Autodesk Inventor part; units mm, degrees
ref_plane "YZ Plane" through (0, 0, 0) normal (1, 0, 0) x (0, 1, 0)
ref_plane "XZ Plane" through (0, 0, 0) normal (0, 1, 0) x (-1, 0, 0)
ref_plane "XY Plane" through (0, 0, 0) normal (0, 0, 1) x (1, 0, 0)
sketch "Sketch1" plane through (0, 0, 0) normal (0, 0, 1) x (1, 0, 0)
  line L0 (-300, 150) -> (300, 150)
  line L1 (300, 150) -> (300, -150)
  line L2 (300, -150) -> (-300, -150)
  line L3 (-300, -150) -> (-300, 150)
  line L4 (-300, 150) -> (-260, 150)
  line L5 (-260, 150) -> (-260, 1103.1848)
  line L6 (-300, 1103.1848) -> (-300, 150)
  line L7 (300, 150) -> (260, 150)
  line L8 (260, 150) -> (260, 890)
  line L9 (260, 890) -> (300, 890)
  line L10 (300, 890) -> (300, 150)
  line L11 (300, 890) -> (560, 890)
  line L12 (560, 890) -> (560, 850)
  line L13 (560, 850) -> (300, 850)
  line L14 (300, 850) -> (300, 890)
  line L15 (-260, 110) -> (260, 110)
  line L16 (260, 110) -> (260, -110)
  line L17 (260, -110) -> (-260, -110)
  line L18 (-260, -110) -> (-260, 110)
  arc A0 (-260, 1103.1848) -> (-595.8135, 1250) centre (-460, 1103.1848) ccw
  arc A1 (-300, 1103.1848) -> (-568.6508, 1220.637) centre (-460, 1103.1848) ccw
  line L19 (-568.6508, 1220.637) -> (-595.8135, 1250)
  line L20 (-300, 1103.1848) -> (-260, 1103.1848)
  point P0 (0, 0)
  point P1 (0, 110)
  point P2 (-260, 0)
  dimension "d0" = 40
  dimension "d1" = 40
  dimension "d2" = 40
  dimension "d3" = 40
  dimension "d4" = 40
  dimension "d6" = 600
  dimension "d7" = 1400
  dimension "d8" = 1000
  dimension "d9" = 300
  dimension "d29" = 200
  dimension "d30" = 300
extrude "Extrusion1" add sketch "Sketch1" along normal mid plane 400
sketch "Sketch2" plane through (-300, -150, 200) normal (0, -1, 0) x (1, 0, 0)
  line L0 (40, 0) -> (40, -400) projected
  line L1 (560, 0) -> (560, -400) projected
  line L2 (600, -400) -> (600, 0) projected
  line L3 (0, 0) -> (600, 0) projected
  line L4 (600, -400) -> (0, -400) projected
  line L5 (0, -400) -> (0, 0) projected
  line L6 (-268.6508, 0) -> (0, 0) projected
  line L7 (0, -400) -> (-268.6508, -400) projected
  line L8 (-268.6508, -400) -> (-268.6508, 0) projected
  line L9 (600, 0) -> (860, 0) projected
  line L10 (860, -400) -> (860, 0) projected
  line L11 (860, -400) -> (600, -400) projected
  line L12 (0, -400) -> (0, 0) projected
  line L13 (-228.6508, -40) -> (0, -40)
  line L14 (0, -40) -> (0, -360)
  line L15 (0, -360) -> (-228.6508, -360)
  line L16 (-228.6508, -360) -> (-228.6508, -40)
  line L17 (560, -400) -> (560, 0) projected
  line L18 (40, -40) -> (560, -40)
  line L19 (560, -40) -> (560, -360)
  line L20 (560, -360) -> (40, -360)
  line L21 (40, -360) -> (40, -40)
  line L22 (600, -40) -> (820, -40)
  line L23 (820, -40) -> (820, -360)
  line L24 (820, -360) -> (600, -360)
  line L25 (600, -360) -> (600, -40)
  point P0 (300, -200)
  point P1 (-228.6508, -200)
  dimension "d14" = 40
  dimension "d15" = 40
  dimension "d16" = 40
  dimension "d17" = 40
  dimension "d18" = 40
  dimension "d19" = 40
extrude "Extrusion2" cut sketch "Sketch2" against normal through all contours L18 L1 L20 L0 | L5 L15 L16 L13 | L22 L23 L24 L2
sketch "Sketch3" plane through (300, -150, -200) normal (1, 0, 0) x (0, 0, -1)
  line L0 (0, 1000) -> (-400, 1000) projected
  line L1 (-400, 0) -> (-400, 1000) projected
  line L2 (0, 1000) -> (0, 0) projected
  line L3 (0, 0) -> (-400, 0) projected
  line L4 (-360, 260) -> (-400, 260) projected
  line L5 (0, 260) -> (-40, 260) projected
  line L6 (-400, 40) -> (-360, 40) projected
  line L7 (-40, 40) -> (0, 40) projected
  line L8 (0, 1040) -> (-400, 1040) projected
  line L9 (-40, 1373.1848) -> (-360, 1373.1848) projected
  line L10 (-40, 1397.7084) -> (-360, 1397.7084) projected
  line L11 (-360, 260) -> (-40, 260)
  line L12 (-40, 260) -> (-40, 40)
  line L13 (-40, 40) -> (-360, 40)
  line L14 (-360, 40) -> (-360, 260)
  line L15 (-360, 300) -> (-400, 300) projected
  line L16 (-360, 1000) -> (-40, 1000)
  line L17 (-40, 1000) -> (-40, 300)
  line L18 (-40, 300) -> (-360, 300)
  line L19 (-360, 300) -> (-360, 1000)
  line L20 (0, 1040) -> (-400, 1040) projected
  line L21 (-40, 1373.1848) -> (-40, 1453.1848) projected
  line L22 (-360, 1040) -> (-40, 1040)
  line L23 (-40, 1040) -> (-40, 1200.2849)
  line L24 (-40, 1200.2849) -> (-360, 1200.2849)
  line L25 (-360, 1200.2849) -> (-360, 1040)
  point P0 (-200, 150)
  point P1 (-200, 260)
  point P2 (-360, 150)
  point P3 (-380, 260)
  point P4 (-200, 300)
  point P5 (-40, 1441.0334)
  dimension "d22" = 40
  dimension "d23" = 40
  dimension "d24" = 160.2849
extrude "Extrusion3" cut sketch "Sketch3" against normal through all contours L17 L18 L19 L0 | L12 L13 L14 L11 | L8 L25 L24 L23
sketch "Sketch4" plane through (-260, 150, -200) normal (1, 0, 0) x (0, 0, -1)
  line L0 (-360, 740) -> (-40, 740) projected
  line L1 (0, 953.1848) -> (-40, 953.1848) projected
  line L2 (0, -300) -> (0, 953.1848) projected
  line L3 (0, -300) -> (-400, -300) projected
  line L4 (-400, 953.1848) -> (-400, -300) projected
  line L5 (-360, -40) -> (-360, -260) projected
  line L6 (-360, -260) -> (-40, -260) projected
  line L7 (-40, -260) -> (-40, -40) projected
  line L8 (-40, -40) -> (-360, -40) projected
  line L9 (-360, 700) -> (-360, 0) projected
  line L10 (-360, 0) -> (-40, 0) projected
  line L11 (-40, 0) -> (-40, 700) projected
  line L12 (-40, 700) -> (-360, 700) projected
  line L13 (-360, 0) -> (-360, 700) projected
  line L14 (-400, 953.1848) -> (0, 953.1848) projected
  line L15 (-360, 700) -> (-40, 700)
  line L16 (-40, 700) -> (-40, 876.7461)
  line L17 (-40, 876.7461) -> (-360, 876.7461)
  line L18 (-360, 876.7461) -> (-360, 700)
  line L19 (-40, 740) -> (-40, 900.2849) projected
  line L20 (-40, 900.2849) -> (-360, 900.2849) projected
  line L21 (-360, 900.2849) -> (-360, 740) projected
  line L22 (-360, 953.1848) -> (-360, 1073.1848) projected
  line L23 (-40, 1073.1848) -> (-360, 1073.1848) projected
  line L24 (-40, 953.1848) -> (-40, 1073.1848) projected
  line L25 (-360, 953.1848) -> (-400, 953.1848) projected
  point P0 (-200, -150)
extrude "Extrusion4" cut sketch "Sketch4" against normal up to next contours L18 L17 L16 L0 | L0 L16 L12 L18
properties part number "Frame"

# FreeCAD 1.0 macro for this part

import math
import FreeCAD as App
import Part
import Sketcher
from FreeCAD import Vector
Q = App.Units.Quantity

doc = App.newDocument("Part")
params = doc.addObject("Spreadsheet::Sheet", "Params")
for row, (alias, value) in enumerate([
    ("sketch1_radius", "200 mm"),
    ("sketch1_width", "600 mm"),
    ("sketch1_width2", "300 mm"),
    ("sketch1_height", "1000 mm"),
    ("sketch1_height2", "40 mm"),
    ("pad1_length", "400 mm"),
    ("sketch2_width", "520 mm"),
    ("sketch2_width2", "220 mm"),
    ("sketch2_height", "320 mm"),
    ("sketch3_width", "700 mm"),
    ("sketch3_width2", "220 mm"),
    ("sketch3_height", "320 mm"),
    ("sketch4_height", "320 mm"),
    ("pocket3_length", "40 mm"),
], start=1):
    params.set(f"A{row}", alias)
    params.set(f"B{row}", "=" + value)
    params.setAlias(f"B{row}", alias)

body = doc.addObject("PartDesign::Body", "Body")

# Sketch on XY plane
sketch1 = body.newObject("Sketcher::SketchObject", "Sketch")
sketch1.AttachmentSupport = (doc.getObject("XY_Plane"), [""])
sketch1.MapMode = "FlatFace"
sketch1.addGeometry([
    Part.LineSegment(Vector(-300, 1103, 0), Vector(-300, -150, 0)),  # 0
    Part.LineSegment(Vector(-300, -150, 0), Vector(300, -150, 0)),  # 1
    Part.LineSegment(Vector(300, -150, 0), Vector(300, 850, 0)),  # 2
    Part.LineSegment(Vector(300, 850, 0), Vector(560, 850, 0)),  # 3
    Part.LineSegment(Vector(560, 850, 0), Vector(560, 890, 0)),  # 4
    Part.LineSegment(Vector(560, 890, 0), Vector(260, 890, 0)),  # 5
    Part.LineSegment(Vector(260, 890, 0), Vector(260, 150, 0)),  # 6
    Part.LineSegment(Vector(260, 150, 0), Vector(-260, 150, 0)),  # 7
    Part.LineSegment(Vector(-260, 150, 0), Vector(-260, 1103, 0)),  # 8
    Part.ArcOfCircle(Part.Circle(Vector(-460, 1103, 0), Vector(0, 0, 1), 200), math.radians(0), math.radians(133)),  # 9
    Part.LineSegment(Vector(-596, 1250, 0), Vector(-569, 1221, 0)),  # 10
    Part.ArcOfCircle(Part.Circle(Vector(-460, 1103, 0), Vector(0, 0, 1), 160), math.radians(0), math.radians(133)),  # 11
    Part.LineSegment(Vector(-260, 110, 0), Vector(260, 110, 0)),  # 12
    Part.LineSegment(Vector(260, 110, 0), Vector(260, -110, 0)),  # 13
    Part.LineSegment(Vector(260, -110, 0), Vector(-260, -110, 0)),  # 14
    Part.LineSegment(Vector(-260, -110, 0), Vector(-260, 110, 0)),  # 15
], False)
sketch1.addConstraint([
    Sketcher.Constraint("Coincident", 0, 2, 1, 1),
    Sketcher.Constraint("Coincident", 1, 2, 2, 1),
    Sketcher.Constraint("Coincident", 2, 2, 3, 1),
    Sketcher.Constraint("Coincident", 3, 2, 4, 1),
    Sketcher.Constraint("Coincident", 4, 2, 5, 1),
    Sketcher.Constraint("Coincident", 5, 2, 6, 1),
    Sketcher.Constraint("Coincident", 6, 2, 7, 1),
    Sketcher.Constraint("Coincident", 7, 2, 8, 1),
    Sketcher.Constraint("Tangent", 8, 2, 9, 1),
    Sketcher.Constraint("Coincident", 9, 2, 10, 1),
    Sketcher.Constraint("Coincident", 10, 2, 11, 2),
    Sketcher.Constraint("Tangent", 11, 1, 0, 1),
    Sketcher.Constraint("Coincident", 12, 2, 13, 1),
    Sketcher.Constraint("Coincident", 13, 2, 14, 1),
    Sketcher.Constraint("Coincident", 14, 2, 15, 1),
    Sketcher.Constraint("Coincident", 15, 2, 12, 1),
    Sketcher.Constraint("Vertical", 0),
    Sketcher.Constraint("Horizontal", 1),
    Sketcher.Constraint("Vertical", 2),
    Sketcher.Constraint("Horizontal", 3),
    Sketcher.Constraint("Vertical", 4),
    Sketcher.Constraint("Horizontal", 5),
    Sketcher.Constraint("Vertical", 6),
    Sketcher.Constraint("Horizontal", 7),
    Sketcher.Constraint("Vertical", 8),
    Sketcher.Constraint("Horizontal", 12),
    Sketcher.Constraint("Vertical", 13),
    Sketcher.Constraint("Horizontal", 14),
    Sketcher.Constraint("Vertical", 15),
    Sketcher.Constraint("Coincident", 11, 3, 9, 3),
    Sketcher.Constraint("Symmetric", 12, 2, 14, 2, -1, 1),
    Sketcher.Constraint("Vertical", 6, 2, 12, 2),
    Sketcher.Constraint("Vertical", 8, 2, 14, 2),
    Sketcher.Constraint("Radius", 9, Q("200 mm")),
    Sketcher.Constraint("DistanceX", 1, 1, 1, 2, Q("600 mm")),
    Sketcher.Constraint("DistanceX", 5, 2, 5, 1, Q("300 mm")),
    Sketcher.Constraint("DistanceY", 2, 1, 2, 2, Q("1000 mm")),
    Sketcher.Constraint("DistanceY", 4, 1, 4, 2, Q("40 mm")),
    Sketcher.Constraint("Distance", 10, Q("40 mm")),
    Sketcher.Constraint("DistanceX", 0, 2, -1, 1, Q("300 mm")),
    Sketcher.Constraint("DistanceY", 1, 2, 6, 2, Q("300 mm")),
    Sketcher.Constraint("DistanceY", 12, 2, 6, 2, Q("40 mm")),
    Sketcher.Constraint("DistanceY", 1, 2, 13, 2, Q("40 mm")),
    Sketcher.Constraint("DistanceY", -1, 1, 9, 2, Q("1250 mm")),
    Sketcher.Constraint("Angle", 10, Q("-47.2292 deg")),
    Sketcher.Constraint("DistanceY", 0, 2, 0, 1, Q("1253.1848 mm")),
])
sketch1.setExpression("Constraints[33]", "Params.sketch1_radius")
sketch1.setExpression("Constraints[34]", "Params.sketch1_width")
sketch1.setExpression("Constraints[35]", "Params.sketch1_width2")
sketch1.setExpression("Constraints[36]", "Params.sketch1_height")
sketch1.setExpression("Constraints[37]", "Params.sketch1_height2")
pad1 = body.newObject("PartDesign::Pad", "Pad")
pad1.Profile = sketch1
pad1.setExpression("Length", "Params.pad1_length")
pad1.Midplane = True

# Sketch on XZ plane
sketch2 = body.newObject("Sketcher::SketchObject", "Sketch001")
sketch2.AttachmentSupport = (doc.getObject("XZ_Plane"), [""])
sketch2.MapMode = "FlatFace"
sketch2.AttachmentOffset = App.Placement(Vector(0, 0, 150), App.Rotation())
sketch2.addGeometry([
    Part.LineSegment(Vector(260, 160, 0), Vector(-260, 160, 0)),  # 0
    Part.LineSegment(Vector(-260, 160, 0), Vector(-260, -160, 0)),  # 1
    Part.LineSegment(Vector(-260, -160, 0), Vector(260, -160, 0)),  # 2
    Part.LineSegment(Vector(260, -160, 0), Vector(260, 160, 0)),  # 3
    Part.LineSegment(Vector(-300, -160, 0), Vector(-300, 160, 0)),  # 4
    Part.LineSegment(Vector(-300, 160, 0), Vector(-529, 160, 0)),  # 5
    Part.LineSegment(Vector(-529, 160, 0), Vector(-529, -160, 0)),  # 6
    Part.LineSegment(Vector(-529, -160, 0), Vector(-300, -160, 0)),  # 7
    Part.LineSegment(Vector(520, 160, 0), Vector(300, 160, 0)),  # 8
    Part.LineSegment(Vector(300, 160, 0), Vector(300, -160, 0)),  # 9
    Part.LineSegment(Vector(300, -160, 0), Vector(520, -160, 0)),  # 10
    Part.LineSegment(Vector(520, -160, 0), Vector(520, 160, 0)),  # 11
], False)
sketch2.addConstraint([
    Sketcher.Constraint("Coincident", 0, 2, 1, 1),
    Sketcher.Constraint("Coincident", 1, 2, 2, 1),
    Sketcher.Constraint("Coincident", 2, 2, 3, 1),
    Sketcher.Constraint("Coincident", 3, 2, 0, 1),
    Sketcher.Constraint("Coincident", 4, 2, 5, 1),
    Sketcher.Constraint("Coincident", 5, 2, 6, 1),
    Sketcher.Constraint("Coincident", 6, 2, 7, 1),
    Sketcher.Constraint("Coincident", 7, 2, 4, 1),
    Sketcher.Constraint("Coincident", 8, 2, 9, 1),
    Sketcher.Constraint("Coincident", 9, 2, 10, 1),
    Sketcher.Constraint("Coincident", 10, 2, 11, 1),
    Sketcher.Constraint("Coincident", 11, 2, 8, 1),
    Sketcher.Constraint("Horizontal", 0),
    Sketcher.Constraint("Vertical", 1),
    Sketcher.Constraint("Horizontal", 2),
    Sketcher.Constraint("Vertical", 3),
    Sketcher.Constraint("Vertical", 4),
    Sketcher.Constraint("Horizontal", 5),
    Sketcher.Constraint("Vertical", 6),
    Sketcher.Constraint("Horizontal", 7),
    Sketcher.Constraint("Horizontal", 8),
    Sketcher.Constraint("Vertical", 9),
    Sketcher.Constraint("Horizontal", 10),
    Sketcher.Constraint("Vertical", 11),
    Sketcher.Constraint("Symmetric", 0, 2, 2, 2, -1, 1),
    Sketcher.Constraint("Symmetric", 7, 2, 8, 2, -1, 1),
    Sketcher.Constraint("Horizontal", 3, 2, 4, 2),
    Sketcher.Constraint("Horizontal", 2, 2, 6, 2),
    Sketcher.Constraint("Horizontal", 7, 2, 9, 2),
    Sketcher.Constraint("DistanceX", 4, 2, 0, 2, Q("40 mm")),
    Sketcher.Constraint("DistanceX", 0, 2, 0, 1, Q("520 mm")),
    Sketcher.Constraint("DistanceX", 8, 2, 8, 1, Q("220 mm")),
    Sketcher.Constraint("DistanceY", 1, 2, 1, 1, Q("320 mm")),
    Sketcher.Constraint("DistanceX", 5, 2, 5, 1, Q("228.6508 mm")),
])
sketch2.setExpression("Constraints[30]", "Params.sketch2_width")
sketch2.setExpression("Constraints[31]", "Params.sketch2_width2")
sketch2.setExpression("Constraints[32]", "Params.sketch2_height")
pocket1 = body.newObject("PartDesign::Pocket", "Pocket")
pocket1.Profile = sketch2
pocket1.Type = "ThroughAll"

# Sketch on YZ plane
sketch3 = body.newObject("Sketcher::SketchObject", "Sketch002")
sketch3.AttachmentSupport = (doc.getObject("YZ_Plane"), [""])
sketch3.MapMode = "FlatFace"
sketch3.AttachmentOffset = App.Placement(Vector(0, 0, 300), App.Rotation())
sketch3.addGeometry([
    Part.LineSegment(Vector(150, -160, 0), Vector(850, -160, 0)),  # 0
    Part.LineSegment(Vector(850, -160, 0), Vector(850, 160, 0)),  # 1
    Part.LineSegment(Vector(850, 160, 0), Vector(150, 160, 0)),  # 2
    Part.LineSegment(Vector(150, 160, 0), Vector(150, -160, 0)),  # 3
    Part.LineSegment(Vector(-110, -160, 0), Vector(110, -160, 0)),  # 4
    Part.LineSegment(Vector(110, -160, 0), Vector(110, 160, 0)),  # 5
    Part.LineSegment(Vector(110, 160, 0), Vector(-110, 160, 0)),  # 6
    Part.LineSegment(Vector(-110, 160, 0), Vector(-110, -160, 0)),  # 7
    Part.LineSegment(Vector(890, 160, 0), Vector(890, -160, 0)),  # 8
    Part.LineSegment(Vector(890, -160, 0), Vector(1050, -160, 0)),  # 9
    Part.LineSegment(Vector(1050, -160, 0), Vector(1050, 160, 0)),  # 10
    Part.LineSegment(Vector(1050, 160, 0), Vector(890, 160, 0)),  # 11
], False)
sketch3.addConstraint([
    Sketcher.Constraint("Coincident", 0, 2, 1, 1),
    Sketcher.Constraint("Coincident", 1, 2, 2, 1),
    Sketcher.Constraint("Coincident", 2, 2, 3, 1),
    Sketcher.Constraint("Coincident", 3, 2, 0, 1),
    Sketcher.Constraint("Coincident", 4, 2, 5, 1),
    Sketcher.Constraint("Coincident", 5, 2, 6, 1),
    Sketcher.Constraint("Coincident", 6, 2, 7, 1),
    Sketcher.Constraint("Coincident", 7, 2, 4, 1),
    Sketcher.Constraint("Coincident", 8, 2, 9, 1),
    Sketcher.Constraint("Coincident", 9, 2, 10, 1),
    Sketcher.Constraint("Coincident", 10, 2, 11, 1),
    Sketcher.Constraint("Coincident", 11, 2, 8, 1),
    Sketcher.Constraint("Horizontal", 0),
    Sketcher.Constraint("Vertical", 1),
    Sketcher.Constraint("Horizontal", 2),
    Sketcher.Constraint("Vertical", 3),
    Sketcher.Constraint("Horizontal", 4),
    Sketcher.Constraint("Vertical", 5),
    Sketcher.Constraint("Horizontal", 6),
    Sketcher.Constraint("Vertical", 7),
    Sketcher.Constraint("Vertical", 8),
    Sketcher.Constraint("Horizontal", 9),
    Sketcher.Constraint("Vertical", 10),
    Sketcher.Constraint("Horizontal", 11),
    Sketcher.Constraint("Symmetric", 4, 2, 6, 2, -1, 1),
    Sketcher.Constraint("Horizontal", 3, 2, 4, 2),
    Sketcher.Constraint("Horizontal", 2, 2, 5, 2),
    Sketcher.Constraint("Horizontal", 7, 2, 8, 2),
    Sketcher.Constraint("Horizontal", 6, 2, 10, 2),
    Sketcher.Constraint("DistanceX", 4, 2, 3, 2, Q("40 mm")),
    Sketcher.Constraint("DistanceX", 0, 2, 8, 2, Q("40 mm")),
    Sketcher.Constraint("DistanceX", 0, 1, 0, 2, Q("700 mm")),
    Sketcher.Constraint("DistanceX", 4, 1, 4, 2, Q("220 mm")),
    Sketcher.Constraint("DistanceX", 9, 1, 9, 2, Q("160.285 mm")),
    Sketcher.Constraint("DistanceY", 1, 1, 1, 2, Q("320 mm")),
])
sketch3.setExpression("Constraints[31]", "Params.sketch3_width")
sketch3.setExpression("Constraints[32]", "Params.sketch3_width2")
sketch3.setExpression("Constraints[34]", "Params.sketch3_height")
pocket2 = body.newObject("PartDesign::Pocket", "Pocket001")
pocket2.Profile = sketch3
pocket2.Type = "ThroughAll"

# Sketch on YZ plane
sketch4 = body.newObject("Sketcher::SketchObject", "Sketch003")
sketch4.AttachmentSupport = (doc.getObject("YZ_Plane"), [""])
sketch4.MapMode = "FlatFace"
sketch4.AttachmentOffset = App.Placement(Vector(0, 0, -260), App.Rotation())
sketch4.addGeometry([
    Part.LineSegment(Vector(1027, 160, 0), Vector(850, 160, 0)),
    Part.LineSegment(Vector(850, 160, 0), Vector(850, -160, 0)),
    Part.LineSegment(Vector(850, -160, 0), Vector(1027, -160, 0)),
    Part.LineSegment(Vector(1027, -160, 0), Vector(1027, 160, 0)),
], False)
sketch4.addConstraint([
    Sketcher.Constraint("Coincident", 0, 2, 1, 1),
    Sketcher.Constraint("Coincident", 1, 2, 2, 1),
    Sketcher.Constraint("Coincident", 2, 2, 3, 1),
    Sketcher.Constraint("Coincident", 3, 2, 0, 1),
    Sketcher.Constraint("Horizontal", 0),
    Sketcher.Constraint("Vertical", 1),
    Sketcher.Constraint("Horizontal", 2),
    Sketcher.Constraint("Vertical", 3),
    Sketcher.Constraint("DistanceY", 1, 2, 1, 1, Q("320 mm")),
    Sketcher.Constraint("DistanceX", -1, 1, 0, 2, Q("850 mm")),
    Sketcher.Constraint("DistanceY", -1, 1, 0, 2, Q("160 mm")),
    Sketcher.Constraint("DistanceX", 0, 2, 0, 1, Q("176.746 mm")),
])
sketch4.setExpression("Constraints[8]", "Params.sketch4_height")
pocket3 = body.newObject("PartDesign::Pocket", "Pocket002")
pocket3.Profile = sketch4
pocket3.setExpression("Length", "Params.pocket3_length")

doc.recompute()
